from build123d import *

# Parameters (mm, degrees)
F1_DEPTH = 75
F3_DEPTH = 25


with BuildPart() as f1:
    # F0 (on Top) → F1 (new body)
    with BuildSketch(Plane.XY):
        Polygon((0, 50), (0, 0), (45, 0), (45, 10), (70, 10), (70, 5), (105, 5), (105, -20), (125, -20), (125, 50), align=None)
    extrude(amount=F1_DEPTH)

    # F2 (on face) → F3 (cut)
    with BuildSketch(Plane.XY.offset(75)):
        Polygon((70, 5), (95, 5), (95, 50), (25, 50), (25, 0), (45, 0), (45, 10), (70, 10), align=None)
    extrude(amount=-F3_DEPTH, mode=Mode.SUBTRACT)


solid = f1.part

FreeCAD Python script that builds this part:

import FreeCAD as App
import Part
import Sketcher

doc = App.newDocument("Part")
params = doc.addObject("Spreadsheet::Sheet", "Params")
for row, (alias, value) in enumerate([
    ("sketch1_width", "45 mm"),
    ("sketch1_width2", "25 mm"),
    ("sketch1_width3", "35 mm"),
    ("sketch1_width4", "20 mm"),
    ("sketch1_height", "50 mm"),
    ("pad1_length", "75 mm"),
    ("sketch2_width", "25 mm"),
    ("sketch2_width2", "70 mm"),
    ("sketch2_height", "45 mm"),
    ("sketch2_height2", "50 mm"),
    ("sketch2_height3", "10 mm"),
    ("pocket1_length", "25 mm"),
], start=1):
    params.set(f"A{row}", alias)
    params.set(f"B{row}", "=" + value)
    params.setAlias(f"B{row}", alias)

body = doc.addObject("PartDesign::Body", "Body")

sketch1 = body.newObject("Sketcher::SketchObject", "Sketch")
sketch1.AttachmentSupport = (doc.getObject("XY_Plane"), [""])
sketch1.MapMode = "FlatFace"
sketch1.addGeometry([
    Part.LineSegment(App.Vector(0, 50, 0), App.Vector(0, 0, 0)),
    Part.LineSegment(App.Vector(0, 0, 0), App.Vector(45, 0, 0)),
    Part.LineSegment(App.Vector(45, 0, 0), App.Vector(45, 10, 0)),
    Part.LineSegment(App.Vector(45, 10, 0), App.Vector(70, 10, 0)),
    Part.LineSegment(App.Vector(70, 10, 0), App.Vector(70, 5, 0)),
    Part.LineSegment(App.Vector(70, 5, 0), App.Vector(105, 5, 0)),
    Part.LineSegment(App.Vector(105, 5, 0), App.Vector(105, -20, 0)),
    Part.LineSegment(App.Vector(105, -20, 0), App.Vector(125, -20, 0)),
    Part.LineSegment(App.Vector(125, -20, 0), App.Vector(125, 50, 0)),
    Part.LineSegment(App.Vector(125, 50, 0), App.Vector(0, 50, 0)),
], False)
sketch1.addConstraint([
    Sketcher.Constraint("Coincident", 0, 2, 1, 1),
    Sketcher.Constraint("Coincident", 1, 2, 2, 1),
    Sketcher.Constraint("Coincident", 2, 2, 3, 1),
    Sketcher.Constraint("Coincident", 3, 2, 4, 1),
    Sketcher.Constraint("Coincident", 4, 2, 5, 1),
    Sketcher.Constraint("Coincident", 5, 2, 6, 1),
    Sketcher.Constraint("Coincident", 6, 2, 7, 1),
    Sketcher.Constraint("Coincident", 7, 2, 8, 1),
    Sketcher.Constraint("Coincident", 8, 2, 9, 1),
    Sketcher.Constraint("Coincident", 9, 2, 0, 1),
    Sketcher.Constraint("Vertical", 0),
    Sketcher.Constraint("Horizontal", 1),
    Sketcher.Constraint("Vertical", 2),
    Sketcher.Constraint("Horizontal", 3),
    Sketcher.Constraint("Vertical", 4),
    Sketcher.Constraint("Horizontal", 5),
    Sketcher.Constraint("Vertical", 6),
    Sketcher.Constraint("Horizontal", 7),
    Sketcher.Constraint("Vertical", 8),
    Sketcher.Constraint("Horizontal", 9),
    Sketcher.Constraint("Coincident", 0, 2, -1, 1),
    Sketcher.Constraint("Equal", 3, 6),
    Sketcher.Constraint("DistanceX", 1, 1, 1, 2, 45.0),
    Sketcher.Constraint("DistanceX", 3, 1, 3, 2, 25.0),
    Sketcher.Constraint("DistanceX", 5, 1, 5, 2, 35.0),
    Sketcher.Constraint("DistanceX", 7, 1, 7, 2, 20.0),
    Sketcher.Constraint("DistanceY", 0, 2, 0, 1, 50.0),
    Sketcher.Constraint("DistanceY", 2, 1, 2, 2, 10.0),
    Sketcher.Constraint("DistanceY", 4, 2, 4, 1, 5.0),
])
sketch1.setExpression("Constraints[22]", "Params.sketch1_width")
sketch1.setExpression("Constraints[23]", "Params.sketch1_width2")
sketch1.setExpression("Constraints[24]", "Params.sketch1_width3")
sketch1.setExpression("Constraints[25]", "Params.sketch1_width4")
sketch1.setExpression("Constraints[26]", "Params.sketch1_height")
pad1 = body.newObject("PartDesign::Pad", "Pad")
pad1.Profile = sketch1
pad1.setExpression("Length", "Params.pad1_length")

sketch2 = body.newObject("Sketcher::SketchObject", "Sketch001")
sketch2.AttachmentSupport = (doc.getObject("XY_Plane"), [""])
sketch2.MapMode = "FlatFace"
sketch2.AttachmentOffset = App.Placement(App.Vector(0, 0, 75), App.Rotation())
sketch2.addGeometry([
    Part.LineSegment(App.Vector(70, 5, 0), App.Vector(95, 5, 0)),
    Part.LineSegment(App.Vector(95, 5, 0), App.Vector(95, 50, 0)),
    Part.LineSegment(App.Vector(95, 50, 0), App.Vector(25, 50, 0)),
    Part.LineSegment(App.Vector(25, 50, 0), App.Vector(25, 0, 0)),
    Part.LineSegment(App.Vector(25, 0, 0), App.Vector(45, 0, 0)),
    Part.LineSegment(App.Vector(45, 0, 0), App.Vector(45, 10, 0)),
    Part.LineSegment(App.Vector(45, 10, 0), App.Vector(70, 10, 0)),
    Part.LineSegment(App.Vector(70, 10, 0), App.Vector(70, 5, 0)),
], False)
sketch2.addConstraint([
    Sketcher.Constraint("Coincident", 0, 2, 1, 1),
    Sketcher.Constraint("Coincident", 1, 2, 2, 1),
    Sketcher.Constraint("Coincident", 2, 2, 3, 1),
    Sketcher.Constraint("Coincident", 3, 2, 4, 1),
    Sketcher.Constraint("Coincident", 4, 2, 5, 1),
    Sketcher.Constraint("Coincident", 5, 2, 6, 1),
    Sketcher.Constraint("Coincident", 6, 2, 7, 1),
    Sketcher.Constraint("Coincident", 7, 2, 0, 1),
    Sketcher.Constraint("Horizontal", 0),
    Sketcher.Constraint("Vertical", 1),
    Sketcher.Constraint("Horizontal", 2),
    Sketcher.Constraint("Vertical", 3),
    Sketcher.Constraint("Horizontal", 4),
    Sketcher.Constraint("Vertical", 5),
    Sketcher.Constraint("Horizontal", 6),
    Sketcher.Constraint("Vertical", 7),
    Sketcher.Constraint("PointOnObject", 3, 2, -1),
    Sketcher.Constraint("Equal", 0, 6),
    Sketcher.Constraint("DistanceX", 0, 1, 0, 2, 25.0),
    Sketcher.Constraint("DistanceX", 2, 2, 2, 1, 70.0),
    Sketcher.Constraint("DistanceY", 1, 1, 1, 2, 45.0),
    Sketcher.Constraint("DistanceY", 3, 2, 3, 1, 50.0),
    Sketcher.Constraint("DistanceY", 5, 1, 5, 2, 10.0),
    Sketcher.Constraint("DistanceX", -1, 1, 0, 2, 95.0),
])
sketch2.setExpression("Constraints[18]", "Params.sketch2_width")
sketch2.setExpression("Constraints[19]", "Params.sketch2_width2")
sketch2.setExpression("Constraints[20]", "Params.sketch2_height")
sketch2.setExpression("Constraints[21]", "Params.sketch2_height2")
sketch2.setExpression("Constraints[22]", "Params.sketch2_height3")
pocket1 = body.newObject("PartDesign::Pocket", "Pocket")
pocket1.Profile = sketch2
pocket1.setExpression("Length", "Params.pocket1_length")

doc.recompute()
